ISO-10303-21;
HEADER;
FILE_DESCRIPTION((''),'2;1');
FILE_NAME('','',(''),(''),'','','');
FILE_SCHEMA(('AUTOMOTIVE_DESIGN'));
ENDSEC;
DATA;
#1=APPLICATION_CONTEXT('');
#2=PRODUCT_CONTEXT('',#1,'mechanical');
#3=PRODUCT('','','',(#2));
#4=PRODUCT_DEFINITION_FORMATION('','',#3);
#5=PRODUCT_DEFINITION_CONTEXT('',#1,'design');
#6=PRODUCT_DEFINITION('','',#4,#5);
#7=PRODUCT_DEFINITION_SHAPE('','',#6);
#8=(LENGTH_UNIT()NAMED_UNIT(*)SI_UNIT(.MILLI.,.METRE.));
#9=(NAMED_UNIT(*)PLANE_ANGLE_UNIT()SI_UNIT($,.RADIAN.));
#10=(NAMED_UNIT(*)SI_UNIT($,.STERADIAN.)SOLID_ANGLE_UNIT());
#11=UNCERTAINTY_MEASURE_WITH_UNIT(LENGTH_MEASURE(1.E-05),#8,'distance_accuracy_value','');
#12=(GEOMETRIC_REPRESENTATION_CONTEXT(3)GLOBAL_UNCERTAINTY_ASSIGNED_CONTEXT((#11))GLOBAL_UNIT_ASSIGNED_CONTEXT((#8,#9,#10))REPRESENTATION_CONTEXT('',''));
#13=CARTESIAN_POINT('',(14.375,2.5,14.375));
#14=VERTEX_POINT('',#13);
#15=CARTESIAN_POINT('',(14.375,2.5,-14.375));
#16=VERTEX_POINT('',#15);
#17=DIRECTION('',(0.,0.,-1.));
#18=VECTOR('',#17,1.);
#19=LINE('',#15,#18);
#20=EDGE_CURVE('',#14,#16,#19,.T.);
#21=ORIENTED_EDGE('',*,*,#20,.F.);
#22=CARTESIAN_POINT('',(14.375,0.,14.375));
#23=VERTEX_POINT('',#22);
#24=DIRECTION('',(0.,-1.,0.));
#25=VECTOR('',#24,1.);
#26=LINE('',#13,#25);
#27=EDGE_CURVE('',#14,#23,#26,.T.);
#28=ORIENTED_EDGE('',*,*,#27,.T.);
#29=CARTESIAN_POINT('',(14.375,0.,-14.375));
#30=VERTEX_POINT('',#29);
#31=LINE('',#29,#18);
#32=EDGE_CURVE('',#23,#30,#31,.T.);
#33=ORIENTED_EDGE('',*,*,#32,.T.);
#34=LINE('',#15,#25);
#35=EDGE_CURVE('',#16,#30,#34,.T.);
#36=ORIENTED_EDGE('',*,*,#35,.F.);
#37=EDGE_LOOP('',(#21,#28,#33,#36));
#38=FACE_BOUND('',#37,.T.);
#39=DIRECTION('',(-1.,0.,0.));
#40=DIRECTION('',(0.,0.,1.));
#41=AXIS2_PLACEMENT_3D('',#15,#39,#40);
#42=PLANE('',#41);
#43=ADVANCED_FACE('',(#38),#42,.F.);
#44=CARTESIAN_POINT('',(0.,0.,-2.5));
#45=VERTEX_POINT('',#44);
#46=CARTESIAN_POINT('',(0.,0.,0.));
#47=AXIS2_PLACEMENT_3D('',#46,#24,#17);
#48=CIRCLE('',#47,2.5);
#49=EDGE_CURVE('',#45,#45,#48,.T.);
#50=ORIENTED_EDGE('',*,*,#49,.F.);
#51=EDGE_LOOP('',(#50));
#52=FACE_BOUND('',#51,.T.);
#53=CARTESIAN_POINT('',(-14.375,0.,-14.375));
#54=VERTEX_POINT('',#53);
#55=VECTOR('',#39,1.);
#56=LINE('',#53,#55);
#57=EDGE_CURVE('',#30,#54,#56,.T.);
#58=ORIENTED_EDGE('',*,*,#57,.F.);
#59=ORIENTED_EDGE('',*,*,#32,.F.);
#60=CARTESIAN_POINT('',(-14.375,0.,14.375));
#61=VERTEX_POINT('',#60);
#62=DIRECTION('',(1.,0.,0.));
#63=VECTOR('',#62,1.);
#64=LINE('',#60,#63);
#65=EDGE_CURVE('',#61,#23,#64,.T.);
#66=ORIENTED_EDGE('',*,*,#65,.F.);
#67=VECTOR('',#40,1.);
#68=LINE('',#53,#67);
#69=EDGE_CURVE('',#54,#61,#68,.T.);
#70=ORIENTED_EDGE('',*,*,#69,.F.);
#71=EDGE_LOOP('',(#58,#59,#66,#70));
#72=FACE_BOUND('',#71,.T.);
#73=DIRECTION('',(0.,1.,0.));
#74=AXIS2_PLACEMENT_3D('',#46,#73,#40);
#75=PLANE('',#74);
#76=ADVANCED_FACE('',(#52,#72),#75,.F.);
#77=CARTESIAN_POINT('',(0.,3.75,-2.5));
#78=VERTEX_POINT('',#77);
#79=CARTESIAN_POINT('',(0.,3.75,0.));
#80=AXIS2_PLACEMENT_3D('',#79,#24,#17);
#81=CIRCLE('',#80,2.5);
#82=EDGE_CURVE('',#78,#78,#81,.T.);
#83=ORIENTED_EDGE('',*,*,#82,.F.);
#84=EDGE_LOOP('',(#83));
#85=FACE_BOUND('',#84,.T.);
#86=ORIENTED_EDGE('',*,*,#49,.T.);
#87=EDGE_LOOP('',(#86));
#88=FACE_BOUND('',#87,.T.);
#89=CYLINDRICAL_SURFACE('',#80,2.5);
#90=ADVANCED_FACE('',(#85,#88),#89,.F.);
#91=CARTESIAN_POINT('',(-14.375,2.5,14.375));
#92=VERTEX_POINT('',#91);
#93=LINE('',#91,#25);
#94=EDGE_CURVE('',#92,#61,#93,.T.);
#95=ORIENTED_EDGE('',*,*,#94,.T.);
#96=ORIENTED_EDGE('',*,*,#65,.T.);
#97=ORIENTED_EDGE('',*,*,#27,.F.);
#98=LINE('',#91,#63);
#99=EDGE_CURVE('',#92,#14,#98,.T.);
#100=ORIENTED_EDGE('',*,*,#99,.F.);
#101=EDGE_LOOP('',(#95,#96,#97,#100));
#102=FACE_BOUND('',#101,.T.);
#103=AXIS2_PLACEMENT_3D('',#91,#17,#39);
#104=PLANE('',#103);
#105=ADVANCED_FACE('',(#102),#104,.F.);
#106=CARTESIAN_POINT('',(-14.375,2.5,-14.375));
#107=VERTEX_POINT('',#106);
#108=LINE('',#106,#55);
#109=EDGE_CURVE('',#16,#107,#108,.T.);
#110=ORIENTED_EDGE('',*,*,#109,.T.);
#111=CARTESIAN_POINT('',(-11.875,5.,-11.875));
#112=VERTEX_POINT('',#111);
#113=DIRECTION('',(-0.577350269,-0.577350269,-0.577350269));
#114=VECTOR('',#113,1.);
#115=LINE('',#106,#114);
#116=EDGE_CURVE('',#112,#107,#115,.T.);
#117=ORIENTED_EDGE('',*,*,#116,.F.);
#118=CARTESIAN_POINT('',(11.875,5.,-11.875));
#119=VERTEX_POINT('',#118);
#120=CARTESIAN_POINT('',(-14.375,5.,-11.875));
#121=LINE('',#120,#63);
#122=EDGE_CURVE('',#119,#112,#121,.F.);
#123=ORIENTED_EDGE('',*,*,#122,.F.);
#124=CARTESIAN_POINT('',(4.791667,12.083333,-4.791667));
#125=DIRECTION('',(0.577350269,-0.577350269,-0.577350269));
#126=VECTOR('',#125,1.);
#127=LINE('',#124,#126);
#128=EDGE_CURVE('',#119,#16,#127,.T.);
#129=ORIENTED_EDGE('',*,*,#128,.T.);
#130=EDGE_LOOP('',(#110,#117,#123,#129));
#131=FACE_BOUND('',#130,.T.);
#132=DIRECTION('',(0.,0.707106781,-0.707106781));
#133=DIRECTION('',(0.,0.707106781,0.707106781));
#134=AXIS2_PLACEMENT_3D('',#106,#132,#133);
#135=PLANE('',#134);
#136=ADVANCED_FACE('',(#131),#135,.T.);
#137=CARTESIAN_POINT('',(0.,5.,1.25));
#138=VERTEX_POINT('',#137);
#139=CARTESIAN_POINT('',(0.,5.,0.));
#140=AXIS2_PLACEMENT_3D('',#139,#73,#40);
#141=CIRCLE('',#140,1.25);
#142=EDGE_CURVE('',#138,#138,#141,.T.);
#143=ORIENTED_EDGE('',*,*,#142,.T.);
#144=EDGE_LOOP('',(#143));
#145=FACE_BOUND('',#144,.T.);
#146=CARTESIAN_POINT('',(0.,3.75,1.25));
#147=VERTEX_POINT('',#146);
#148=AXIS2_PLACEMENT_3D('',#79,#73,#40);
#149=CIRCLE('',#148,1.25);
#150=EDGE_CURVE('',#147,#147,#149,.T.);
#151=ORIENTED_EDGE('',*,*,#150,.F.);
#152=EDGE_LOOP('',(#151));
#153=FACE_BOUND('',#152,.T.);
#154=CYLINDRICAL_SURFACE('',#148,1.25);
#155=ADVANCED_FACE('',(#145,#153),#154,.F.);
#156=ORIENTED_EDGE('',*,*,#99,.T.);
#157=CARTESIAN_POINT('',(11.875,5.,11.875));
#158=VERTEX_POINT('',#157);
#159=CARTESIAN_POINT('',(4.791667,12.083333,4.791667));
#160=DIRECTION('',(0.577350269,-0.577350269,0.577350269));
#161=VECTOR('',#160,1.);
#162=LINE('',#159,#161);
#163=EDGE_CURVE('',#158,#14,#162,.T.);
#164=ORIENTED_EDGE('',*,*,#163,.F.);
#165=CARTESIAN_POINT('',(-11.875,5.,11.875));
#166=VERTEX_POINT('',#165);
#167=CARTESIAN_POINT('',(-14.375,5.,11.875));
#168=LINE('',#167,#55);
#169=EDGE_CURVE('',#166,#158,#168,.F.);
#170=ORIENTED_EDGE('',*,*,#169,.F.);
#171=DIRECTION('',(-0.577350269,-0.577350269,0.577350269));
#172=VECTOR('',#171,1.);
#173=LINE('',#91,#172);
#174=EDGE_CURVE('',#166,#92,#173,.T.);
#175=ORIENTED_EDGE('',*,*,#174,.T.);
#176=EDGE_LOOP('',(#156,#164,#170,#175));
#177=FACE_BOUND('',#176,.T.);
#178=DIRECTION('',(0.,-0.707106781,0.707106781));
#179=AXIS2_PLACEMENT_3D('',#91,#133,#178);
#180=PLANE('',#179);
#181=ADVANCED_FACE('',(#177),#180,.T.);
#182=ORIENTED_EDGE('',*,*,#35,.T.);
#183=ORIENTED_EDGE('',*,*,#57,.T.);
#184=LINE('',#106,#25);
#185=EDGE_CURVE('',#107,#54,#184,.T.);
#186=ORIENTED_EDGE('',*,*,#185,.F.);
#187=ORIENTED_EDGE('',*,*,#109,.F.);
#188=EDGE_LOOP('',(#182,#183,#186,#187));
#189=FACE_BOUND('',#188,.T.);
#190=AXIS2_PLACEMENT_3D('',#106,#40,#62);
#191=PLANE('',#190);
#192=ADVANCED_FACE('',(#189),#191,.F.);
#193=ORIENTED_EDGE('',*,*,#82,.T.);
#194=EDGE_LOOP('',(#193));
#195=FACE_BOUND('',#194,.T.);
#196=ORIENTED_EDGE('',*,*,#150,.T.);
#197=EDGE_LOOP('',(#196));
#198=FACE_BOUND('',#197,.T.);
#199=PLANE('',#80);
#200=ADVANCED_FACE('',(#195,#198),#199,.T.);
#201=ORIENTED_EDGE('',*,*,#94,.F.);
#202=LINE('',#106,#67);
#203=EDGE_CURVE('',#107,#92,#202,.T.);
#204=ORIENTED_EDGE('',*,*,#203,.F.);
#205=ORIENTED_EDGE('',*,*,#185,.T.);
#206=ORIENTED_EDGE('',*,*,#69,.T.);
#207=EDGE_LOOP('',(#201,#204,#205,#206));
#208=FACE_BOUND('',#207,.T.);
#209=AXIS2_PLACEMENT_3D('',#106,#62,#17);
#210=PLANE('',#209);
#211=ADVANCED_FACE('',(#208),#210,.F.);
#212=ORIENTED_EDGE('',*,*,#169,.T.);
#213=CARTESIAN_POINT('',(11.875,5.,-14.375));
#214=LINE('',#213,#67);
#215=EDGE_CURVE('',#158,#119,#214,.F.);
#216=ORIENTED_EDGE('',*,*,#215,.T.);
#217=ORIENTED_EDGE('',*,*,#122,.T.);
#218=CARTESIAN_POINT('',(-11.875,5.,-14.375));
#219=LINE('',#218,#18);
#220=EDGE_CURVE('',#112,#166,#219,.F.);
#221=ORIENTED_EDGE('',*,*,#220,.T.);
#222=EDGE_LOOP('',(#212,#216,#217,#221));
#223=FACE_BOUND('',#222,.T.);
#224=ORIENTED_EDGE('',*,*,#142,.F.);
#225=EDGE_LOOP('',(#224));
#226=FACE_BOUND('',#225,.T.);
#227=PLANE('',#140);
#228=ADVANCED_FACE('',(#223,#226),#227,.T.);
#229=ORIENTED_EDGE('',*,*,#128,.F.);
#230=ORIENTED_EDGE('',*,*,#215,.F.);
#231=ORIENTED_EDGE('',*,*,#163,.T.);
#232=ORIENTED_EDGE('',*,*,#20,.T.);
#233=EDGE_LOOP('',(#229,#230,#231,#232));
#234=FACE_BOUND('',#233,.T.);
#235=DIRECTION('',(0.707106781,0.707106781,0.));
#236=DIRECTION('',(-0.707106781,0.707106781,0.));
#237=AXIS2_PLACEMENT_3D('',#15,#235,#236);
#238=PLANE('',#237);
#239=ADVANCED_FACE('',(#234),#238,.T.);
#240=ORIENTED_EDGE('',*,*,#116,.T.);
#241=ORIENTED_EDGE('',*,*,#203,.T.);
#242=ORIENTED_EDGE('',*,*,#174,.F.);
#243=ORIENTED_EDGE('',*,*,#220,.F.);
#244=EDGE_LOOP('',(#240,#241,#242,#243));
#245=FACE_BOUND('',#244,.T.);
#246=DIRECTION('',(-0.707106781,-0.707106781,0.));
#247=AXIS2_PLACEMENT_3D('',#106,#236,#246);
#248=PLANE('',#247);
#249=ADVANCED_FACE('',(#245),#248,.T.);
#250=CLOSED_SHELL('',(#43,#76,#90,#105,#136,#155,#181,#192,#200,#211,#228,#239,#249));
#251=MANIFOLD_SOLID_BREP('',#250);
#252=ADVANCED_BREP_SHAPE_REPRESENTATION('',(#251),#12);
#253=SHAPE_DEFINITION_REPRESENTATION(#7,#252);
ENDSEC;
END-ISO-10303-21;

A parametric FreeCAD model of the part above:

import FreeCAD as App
import Part
import Sketcher

V = App.Vector
Q = App.Units.Quantity


def add_polygon(sketch, points):
    """Adds a closed chain of lines whose ends are joined by coincident constraints."""
    first, n = sketch.GeometryCount, len(points)
    for a, b in zip(points, points[1:] + points[:1]):
        sketch.addGeometry(Part.LineSegment(App.Vector(*a, 0), App.Vector(*b, 0)), False)
    for i in range(n):
        sketch.addConstraint(Sketcher.Constraint("Coincident", first + i, 2, first + (i + 1) % n, 1))

doc = App.newDocument("Part")
body = doc.addObject("PartDesign::Body", "Body")

# Sketch on XZ plane
sketch1 = body.newObject("Sketcher::SketchObject", "Sketch")
sketch1.AttachmentSupport = (doc.getObject("XZ_Plane"), [""])
sketch1.MapMode = "FlatFace"
add_polygon(sketch1, [(-14, -14), (-14, 14), (14, 14), (14, -14)])  # lines 0-3
sketch1.addConstraint(Sketcher.Constraint("Vertical", 0))
sketch1.addConstraint(Sketcher.Constraint("Horizontal", 1))
sketch1.addConstraint(Sketcher.Constraint("Vertical", 2))
sketch1.addConstraint(Sketcher.Constraint("Horizontal", 3))
sketch1.addConstraint(Sketcher.Constraint("Symmetric", 0, 2, 2, 2, -1, 1))
sketch1.addConstraint(Sketcher.Constraint("Equal", 3, 0))
sketch1.addConstraint(Sketcher.Constraint("DistanceX", 1, 1, 1, 2, Q("28.75 mm")))
pad1 = body.newObject("PartDesign::Pad", "Pad")
pad1.Profile = sketch1
pad1.Length = 2.5
pad1.Reversed = True

# Sketch on XZ plane
sketch2 = body.newObject("Sketcher::SketchObject", "Sketch001")
sketch2.AttachmentSupport = (doc.getObject("XZ_Plane"), [""])
sketch2.MapMode = "FlatFace"
sketch2.AttachmentOffset = App.Placement(V(0, 0, -2.5), App.Rotation())
add_polygon(sketch2, [(-14, -14), (-14, 14), (14, 14), (14, -14)])  # lines 0-3
sketch2.addConstraint(Sketcher.Constraint("Vertical", 0))
sketch2.addConstraint(Sketcher.Constraint("Horizontal", 1))
sketch2.addConstraint(Sketcher.Constraint("Vertical", 2))
sketch2.addConstraint(Sketcher.Constraint("Horizontal", 3))
sketch2.addConstraint(Sketcher.Constraint("Symmetric", 0, 2, 2, 2, -1, 1))
sketch2.addConstraint(Sketcher.Constraint("Equal", 3, 0))
sketch2.addConstraint(Sketcher.Constraint("DistanceX", 1, 1, 1, 2, Q("28.75 mm")))
pad2 = body.newObject("PartDesign::Pad", "Pad001")
pad2.Profile = sketch2
pad2.Length = 2.5
pad2.Reversed = True
pad2.TaperAngle = -45

# Sketch on XZ plane
sketch3 = body.newObject("Sketcher::SketchObject", "Sketch002")
sketch3.AttachmentSupport = (doc.getObject("XZ_Plane"), [""])
sketch3.MapMode = "FlatFace"
sketch3.AttachmentOffset = App.Placement(V(0, 0, -5), App.Rotation())
sketch3.addGeometry(Part.Circle(V(0, 0, 0), V(0, 0, 1), 1.2), False)
sketch3.addConstraint(Sketcher.Constraint("Coincident", 0, 3, -1, 1))
sketch3.addConstraint(Sketcher.Constraint("Diameter", 0, Q("2.5 mm")))
pocket1 = body.newObject("PartDesign::Pocket", "Pocket")
pocket1.Profile = sketch3
pocket1.Length = 1.25
pocket1.Reversed = True

# Sketch on XZ plane
sketch4 = body.newObject("Sketcher::SketchObject", "Sketch003")
sketch4.AttachmentSupport = (doc.getObject("XZ_Plane"), [""])
sketch4.MapMode = "FlatFace"
sketch4.addGeometry(Part.Circle(V(0, 0, 0), V(0, 0, 1), 2.5), False)
sketch4.addConstraint(Sketcher.Constraint("Coincident", 0, 3, -1, 1))
sketch4.addConstraint(Sketcher.Constraint("Diameter", 0, Q("5 mm")))
pocket2 = body.newObject("PartDesign::Pocket", "Pocket001")
pocket2.Profile = sketch4
pocket2.Length = 3.75

doc.recompute()
